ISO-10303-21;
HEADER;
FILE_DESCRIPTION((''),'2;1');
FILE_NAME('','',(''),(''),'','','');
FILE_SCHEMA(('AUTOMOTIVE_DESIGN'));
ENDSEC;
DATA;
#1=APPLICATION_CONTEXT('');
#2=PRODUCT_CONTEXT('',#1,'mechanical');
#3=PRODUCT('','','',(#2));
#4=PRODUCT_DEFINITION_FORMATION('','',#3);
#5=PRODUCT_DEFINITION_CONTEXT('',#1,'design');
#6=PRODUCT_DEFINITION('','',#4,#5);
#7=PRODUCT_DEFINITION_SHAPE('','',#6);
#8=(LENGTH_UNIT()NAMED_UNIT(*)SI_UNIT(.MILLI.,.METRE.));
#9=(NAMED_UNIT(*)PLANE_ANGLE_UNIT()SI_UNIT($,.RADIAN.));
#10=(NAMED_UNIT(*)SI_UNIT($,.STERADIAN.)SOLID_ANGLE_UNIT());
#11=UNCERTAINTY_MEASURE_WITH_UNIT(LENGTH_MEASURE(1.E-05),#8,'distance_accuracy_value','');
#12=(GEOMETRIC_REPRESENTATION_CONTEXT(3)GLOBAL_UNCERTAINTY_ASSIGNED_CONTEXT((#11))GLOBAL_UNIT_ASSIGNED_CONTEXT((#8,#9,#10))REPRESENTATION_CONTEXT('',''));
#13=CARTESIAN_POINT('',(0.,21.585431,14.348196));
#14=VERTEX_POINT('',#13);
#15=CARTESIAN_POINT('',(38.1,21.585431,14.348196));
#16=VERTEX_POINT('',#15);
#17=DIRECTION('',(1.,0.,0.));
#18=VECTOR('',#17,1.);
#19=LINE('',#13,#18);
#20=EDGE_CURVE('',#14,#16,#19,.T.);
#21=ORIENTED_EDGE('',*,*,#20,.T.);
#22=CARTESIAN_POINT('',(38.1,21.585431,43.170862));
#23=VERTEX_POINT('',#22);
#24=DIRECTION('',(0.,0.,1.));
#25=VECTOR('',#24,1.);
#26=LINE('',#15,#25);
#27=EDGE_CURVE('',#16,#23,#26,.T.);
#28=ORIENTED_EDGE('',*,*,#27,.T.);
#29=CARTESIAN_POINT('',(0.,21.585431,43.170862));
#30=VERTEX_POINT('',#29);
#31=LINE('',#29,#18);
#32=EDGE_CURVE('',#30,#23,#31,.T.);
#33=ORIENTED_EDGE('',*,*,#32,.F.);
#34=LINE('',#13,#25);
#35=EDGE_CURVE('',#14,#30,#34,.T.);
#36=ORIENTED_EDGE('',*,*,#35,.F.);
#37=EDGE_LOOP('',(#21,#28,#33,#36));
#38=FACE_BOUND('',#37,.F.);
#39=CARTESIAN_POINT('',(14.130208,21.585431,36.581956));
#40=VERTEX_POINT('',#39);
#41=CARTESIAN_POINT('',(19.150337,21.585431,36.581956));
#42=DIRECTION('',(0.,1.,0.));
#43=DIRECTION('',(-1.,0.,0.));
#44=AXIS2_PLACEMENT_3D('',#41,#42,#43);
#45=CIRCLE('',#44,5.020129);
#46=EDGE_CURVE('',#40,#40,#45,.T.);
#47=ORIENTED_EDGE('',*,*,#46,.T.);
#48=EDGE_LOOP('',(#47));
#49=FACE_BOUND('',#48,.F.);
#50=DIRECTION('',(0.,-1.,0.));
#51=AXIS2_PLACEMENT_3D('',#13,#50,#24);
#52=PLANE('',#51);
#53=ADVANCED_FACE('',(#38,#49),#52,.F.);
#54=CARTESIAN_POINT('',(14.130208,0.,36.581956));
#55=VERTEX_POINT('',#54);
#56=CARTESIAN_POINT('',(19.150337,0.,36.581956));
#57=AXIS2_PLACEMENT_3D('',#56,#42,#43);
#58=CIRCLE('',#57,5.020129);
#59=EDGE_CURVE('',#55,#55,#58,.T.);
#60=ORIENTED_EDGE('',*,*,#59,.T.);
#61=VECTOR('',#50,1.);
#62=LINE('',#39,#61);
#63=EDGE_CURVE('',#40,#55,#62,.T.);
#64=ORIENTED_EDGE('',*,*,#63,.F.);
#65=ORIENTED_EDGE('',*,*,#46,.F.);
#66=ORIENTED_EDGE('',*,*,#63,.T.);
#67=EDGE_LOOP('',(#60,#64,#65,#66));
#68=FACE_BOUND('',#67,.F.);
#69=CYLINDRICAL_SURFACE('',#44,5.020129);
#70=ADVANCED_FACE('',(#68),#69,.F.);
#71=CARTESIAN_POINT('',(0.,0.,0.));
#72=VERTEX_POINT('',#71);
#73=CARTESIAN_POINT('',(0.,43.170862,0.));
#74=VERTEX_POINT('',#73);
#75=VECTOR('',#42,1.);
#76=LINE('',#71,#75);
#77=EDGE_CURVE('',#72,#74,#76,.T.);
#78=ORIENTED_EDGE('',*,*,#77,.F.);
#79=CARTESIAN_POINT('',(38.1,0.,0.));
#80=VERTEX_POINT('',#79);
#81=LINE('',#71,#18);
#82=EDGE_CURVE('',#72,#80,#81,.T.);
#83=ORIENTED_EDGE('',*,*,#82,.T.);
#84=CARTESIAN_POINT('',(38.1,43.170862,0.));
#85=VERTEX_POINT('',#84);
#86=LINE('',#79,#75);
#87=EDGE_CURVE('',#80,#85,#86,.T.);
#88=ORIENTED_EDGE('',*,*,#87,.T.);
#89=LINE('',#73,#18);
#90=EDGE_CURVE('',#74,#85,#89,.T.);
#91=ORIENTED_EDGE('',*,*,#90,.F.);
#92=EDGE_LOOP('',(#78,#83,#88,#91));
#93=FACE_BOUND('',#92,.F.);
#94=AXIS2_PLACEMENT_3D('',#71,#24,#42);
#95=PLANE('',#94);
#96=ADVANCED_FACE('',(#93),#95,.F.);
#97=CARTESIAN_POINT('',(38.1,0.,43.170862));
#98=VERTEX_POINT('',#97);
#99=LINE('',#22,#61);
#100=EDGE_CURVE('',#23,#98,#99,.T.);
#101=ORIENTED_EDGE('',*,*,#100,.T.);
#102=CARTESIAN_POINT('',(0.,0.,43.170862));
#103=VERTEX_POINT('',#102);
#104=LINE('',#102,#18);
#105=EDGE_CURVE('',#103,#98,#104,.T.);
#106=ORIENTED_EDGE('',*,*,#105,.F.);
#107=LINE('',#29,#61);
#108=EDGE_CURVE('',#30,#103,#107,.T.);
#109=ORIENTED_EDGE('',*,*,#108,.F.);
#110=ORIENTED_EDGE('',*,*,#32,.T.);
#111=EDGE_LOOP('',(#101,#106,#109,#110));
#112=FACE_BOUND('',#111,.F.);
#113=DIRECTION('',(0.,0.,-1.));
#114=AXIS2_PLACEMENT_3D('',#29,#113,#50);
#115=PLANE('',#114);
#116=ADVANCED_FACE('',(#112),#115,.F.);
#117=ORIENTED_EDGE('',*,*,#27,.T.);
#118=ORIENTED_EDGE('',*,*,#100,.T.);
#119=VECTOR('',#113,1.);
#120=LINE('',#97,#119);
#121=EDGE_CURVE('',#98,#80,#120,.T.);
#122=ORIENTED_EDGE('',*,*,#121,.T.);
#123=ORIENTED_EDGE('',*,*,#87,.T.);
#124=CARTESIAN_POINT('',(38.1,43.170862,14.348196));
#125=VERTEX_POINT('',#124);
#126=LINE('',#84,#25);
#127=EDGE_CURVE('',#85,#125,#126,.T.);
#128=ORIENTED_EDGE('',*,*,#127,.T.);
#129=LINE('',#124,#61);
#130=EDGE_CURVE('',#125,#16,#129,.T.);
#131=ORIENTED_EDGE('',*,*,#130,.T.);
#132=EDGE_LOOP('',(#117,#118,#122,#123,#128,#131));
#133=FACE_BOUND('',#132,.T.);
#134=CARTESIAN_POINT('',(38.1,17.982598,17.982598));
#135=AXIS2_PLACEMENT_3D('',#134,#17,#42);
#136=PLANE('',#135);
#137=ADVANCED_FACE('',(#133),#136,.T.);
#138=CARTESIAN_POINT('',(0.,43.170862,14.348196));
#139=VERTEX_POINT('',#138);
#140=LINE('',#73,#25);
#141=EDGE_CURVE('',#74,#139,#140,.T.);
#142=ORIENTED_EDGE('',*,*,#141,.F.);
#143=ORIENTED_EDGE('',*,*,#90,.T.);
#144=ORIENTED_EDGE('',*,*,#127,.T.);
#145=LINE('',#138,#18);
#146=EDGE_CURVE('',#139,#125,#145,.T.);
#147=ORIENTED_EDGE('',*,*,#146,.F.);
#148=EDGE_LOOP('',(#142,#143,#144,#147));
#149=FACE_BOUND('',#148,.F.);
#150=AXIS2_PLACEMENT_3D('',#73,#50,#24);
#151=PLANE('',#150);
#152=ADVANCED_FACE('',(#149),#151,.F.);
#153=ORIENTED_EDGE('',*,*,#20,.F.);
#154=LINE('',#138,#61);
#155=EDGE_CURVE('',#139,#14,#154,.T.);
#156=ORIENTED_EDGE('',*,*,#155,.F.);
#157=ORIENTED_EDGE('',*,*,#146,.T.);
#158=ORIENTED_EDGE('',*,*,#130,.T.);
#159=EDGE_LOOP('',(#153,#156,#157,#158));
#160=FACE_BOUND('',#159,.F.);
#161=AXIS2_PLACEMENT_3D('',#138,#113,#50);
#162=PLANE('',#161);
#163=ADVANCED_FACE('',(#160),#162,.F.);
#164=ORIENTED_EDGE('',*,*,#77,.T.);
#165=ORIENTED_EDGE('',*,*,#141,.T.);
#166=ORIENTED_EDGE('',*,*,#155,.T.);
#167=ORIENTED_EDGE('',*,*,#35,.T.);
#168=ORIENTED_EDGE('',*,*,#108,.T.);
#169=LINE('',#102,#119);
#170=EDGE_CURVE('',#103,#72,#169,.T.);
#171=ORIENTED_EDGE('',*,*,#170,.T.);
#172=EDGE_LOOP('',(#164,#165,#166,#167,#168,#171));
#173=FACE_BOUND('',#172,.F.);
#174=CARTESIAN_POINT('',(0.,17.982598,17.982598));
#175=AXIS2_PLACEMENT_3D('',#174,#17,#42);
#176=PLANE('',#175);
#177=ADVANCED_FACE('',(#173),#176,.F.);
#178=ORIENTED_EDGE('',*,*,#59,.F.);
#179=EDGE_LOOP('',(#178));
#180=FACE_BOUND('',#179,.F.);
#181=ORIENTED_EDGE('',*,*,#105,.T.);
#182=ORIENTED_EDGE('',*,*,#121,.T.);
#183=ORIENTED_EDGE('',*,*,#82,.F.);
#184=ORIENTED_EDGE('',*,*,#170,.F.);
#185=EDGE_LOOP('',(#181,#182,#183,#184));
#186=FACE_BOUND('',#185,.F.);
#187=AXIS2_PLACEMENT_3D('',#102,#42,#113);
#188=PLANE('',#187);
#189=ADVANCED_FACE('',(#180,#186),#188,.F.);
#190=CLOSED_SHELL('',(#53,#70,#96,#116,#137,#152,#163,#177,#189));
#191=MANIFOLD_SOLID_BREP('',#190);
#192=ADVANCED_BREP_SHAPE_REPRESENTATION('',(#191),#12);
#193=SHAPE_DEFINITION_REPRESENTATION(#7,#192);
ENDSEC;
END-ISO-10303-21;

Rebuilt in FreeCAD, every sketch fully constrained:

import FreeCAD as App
import Part
import Sketcher
Q = App.Units.Quantity


def add_polygon(sketch, points):
    """Adds a closed chain of lines whose ends are joined by coincident constraints."""
    first, n = sketch.GeometryCount, len(points)
    for a, b in zip(points, points[1:] + points[:1]):
        sketch.addGeometry(Part.LineSegment(App.Vector(*a, 0), App.Vector(*b, 0)), False)
    for i in range(n):
        sketch.addConstraint(Sketcher.Constraint("Coincident", first + i, 2, first + (i + 1) % n, 1))

doc = App.newDocument("Part")
body = doc.addObject("PartDesign::Body", "Body")

# Sketch on YZ plane
sketch1 = doc.addObject("Sketcher::SketchObject", "Sketch")
body.addObject(sketch1)
sketch1.AttachmentSupport = (doc.YZ_Plane, [""])
sketch1.MapMode = "FlatFace"
add_polygon(sketch1, [(22, 43), (0, 43), (0, 0), (43, 0), (43, 14), (22, 14)])  # lines 0-5
sketch1.addConstraint(Sketcher.Constraint("Horizontal", 0))
sketch1.addConstraint(Sketcher.Constraint("Vertical", 1))
sketch1.addConstraint(Sketcher.Constraint("Horizontal", 2))
sketch1.addConstraint(Sketcher.Constraint("Vertical", 3))
sketch1.addConstraint(Sketcher.Constraint("Horizontal", 4))
sketch1.addConstraint(Sketcher.Constraint("Vertical", 5))
sketch1.addConstraint(Sketcher.Constraint("Coincident", 1, 2, -1, 1))
sketch1.addConstraint(Sketcher.Constraint("Equal", 0, 4))
sketch1.addConstraint(Sketcher.Constraint("Equal", 2, 1))
sketch1.addConstraint(Sketcher.Constraint("DistanceX", 0, 2, 0, 1, 21.585431))
sketch1.addConstraint(Sketcher.Constraint("DistanceY", 3, 1, 3, 2, 14.348196))
pad1 = doc.addObject("PartDesign::Pad", "Pad")
body.addObject(pad1)
pad1.Profile = sketch1
pad1.Length = Q("1.5 in")

# Sketch on XZ plane
sketch2 = doc.addObject("Sketcher::SketchObject", "Sketch001")
body.addObject(sketch2)
sketch2.AttachmentSupport = (doc.XZ_Plane, [""])
sketch2.MapMode = "FlatFace"
sketch2.AttachmentOffset = App.Placement(App.Vector(0, 0, -21.585431), App.Rotation())
sketch2.addGeometry(Part.Circle(App.Vector(19, 37, 0), App.Vector(0, 0, 1), 5), False)
sketch2.addConstraint(Sketcher.Constraint("Diameter", 0, 10.040258))
sketch2.addConstraint(Sketcher.Constraint("DistanceX", -1, 1, 0, 3, 19.150337))
sketch2.addConstraint(Sketcher.Constraint("DistanceY", -1, 1, 0, 3, 36.581956))
pocket1 = doc.addObject("PartDesign::Pocket", "Pocket")
body.addObject(pocket1)
pocket1.Profile = sketch2
pocket1.Length = Q("0.95 in")
pocket1.Reversed = True

doc.recompute()
